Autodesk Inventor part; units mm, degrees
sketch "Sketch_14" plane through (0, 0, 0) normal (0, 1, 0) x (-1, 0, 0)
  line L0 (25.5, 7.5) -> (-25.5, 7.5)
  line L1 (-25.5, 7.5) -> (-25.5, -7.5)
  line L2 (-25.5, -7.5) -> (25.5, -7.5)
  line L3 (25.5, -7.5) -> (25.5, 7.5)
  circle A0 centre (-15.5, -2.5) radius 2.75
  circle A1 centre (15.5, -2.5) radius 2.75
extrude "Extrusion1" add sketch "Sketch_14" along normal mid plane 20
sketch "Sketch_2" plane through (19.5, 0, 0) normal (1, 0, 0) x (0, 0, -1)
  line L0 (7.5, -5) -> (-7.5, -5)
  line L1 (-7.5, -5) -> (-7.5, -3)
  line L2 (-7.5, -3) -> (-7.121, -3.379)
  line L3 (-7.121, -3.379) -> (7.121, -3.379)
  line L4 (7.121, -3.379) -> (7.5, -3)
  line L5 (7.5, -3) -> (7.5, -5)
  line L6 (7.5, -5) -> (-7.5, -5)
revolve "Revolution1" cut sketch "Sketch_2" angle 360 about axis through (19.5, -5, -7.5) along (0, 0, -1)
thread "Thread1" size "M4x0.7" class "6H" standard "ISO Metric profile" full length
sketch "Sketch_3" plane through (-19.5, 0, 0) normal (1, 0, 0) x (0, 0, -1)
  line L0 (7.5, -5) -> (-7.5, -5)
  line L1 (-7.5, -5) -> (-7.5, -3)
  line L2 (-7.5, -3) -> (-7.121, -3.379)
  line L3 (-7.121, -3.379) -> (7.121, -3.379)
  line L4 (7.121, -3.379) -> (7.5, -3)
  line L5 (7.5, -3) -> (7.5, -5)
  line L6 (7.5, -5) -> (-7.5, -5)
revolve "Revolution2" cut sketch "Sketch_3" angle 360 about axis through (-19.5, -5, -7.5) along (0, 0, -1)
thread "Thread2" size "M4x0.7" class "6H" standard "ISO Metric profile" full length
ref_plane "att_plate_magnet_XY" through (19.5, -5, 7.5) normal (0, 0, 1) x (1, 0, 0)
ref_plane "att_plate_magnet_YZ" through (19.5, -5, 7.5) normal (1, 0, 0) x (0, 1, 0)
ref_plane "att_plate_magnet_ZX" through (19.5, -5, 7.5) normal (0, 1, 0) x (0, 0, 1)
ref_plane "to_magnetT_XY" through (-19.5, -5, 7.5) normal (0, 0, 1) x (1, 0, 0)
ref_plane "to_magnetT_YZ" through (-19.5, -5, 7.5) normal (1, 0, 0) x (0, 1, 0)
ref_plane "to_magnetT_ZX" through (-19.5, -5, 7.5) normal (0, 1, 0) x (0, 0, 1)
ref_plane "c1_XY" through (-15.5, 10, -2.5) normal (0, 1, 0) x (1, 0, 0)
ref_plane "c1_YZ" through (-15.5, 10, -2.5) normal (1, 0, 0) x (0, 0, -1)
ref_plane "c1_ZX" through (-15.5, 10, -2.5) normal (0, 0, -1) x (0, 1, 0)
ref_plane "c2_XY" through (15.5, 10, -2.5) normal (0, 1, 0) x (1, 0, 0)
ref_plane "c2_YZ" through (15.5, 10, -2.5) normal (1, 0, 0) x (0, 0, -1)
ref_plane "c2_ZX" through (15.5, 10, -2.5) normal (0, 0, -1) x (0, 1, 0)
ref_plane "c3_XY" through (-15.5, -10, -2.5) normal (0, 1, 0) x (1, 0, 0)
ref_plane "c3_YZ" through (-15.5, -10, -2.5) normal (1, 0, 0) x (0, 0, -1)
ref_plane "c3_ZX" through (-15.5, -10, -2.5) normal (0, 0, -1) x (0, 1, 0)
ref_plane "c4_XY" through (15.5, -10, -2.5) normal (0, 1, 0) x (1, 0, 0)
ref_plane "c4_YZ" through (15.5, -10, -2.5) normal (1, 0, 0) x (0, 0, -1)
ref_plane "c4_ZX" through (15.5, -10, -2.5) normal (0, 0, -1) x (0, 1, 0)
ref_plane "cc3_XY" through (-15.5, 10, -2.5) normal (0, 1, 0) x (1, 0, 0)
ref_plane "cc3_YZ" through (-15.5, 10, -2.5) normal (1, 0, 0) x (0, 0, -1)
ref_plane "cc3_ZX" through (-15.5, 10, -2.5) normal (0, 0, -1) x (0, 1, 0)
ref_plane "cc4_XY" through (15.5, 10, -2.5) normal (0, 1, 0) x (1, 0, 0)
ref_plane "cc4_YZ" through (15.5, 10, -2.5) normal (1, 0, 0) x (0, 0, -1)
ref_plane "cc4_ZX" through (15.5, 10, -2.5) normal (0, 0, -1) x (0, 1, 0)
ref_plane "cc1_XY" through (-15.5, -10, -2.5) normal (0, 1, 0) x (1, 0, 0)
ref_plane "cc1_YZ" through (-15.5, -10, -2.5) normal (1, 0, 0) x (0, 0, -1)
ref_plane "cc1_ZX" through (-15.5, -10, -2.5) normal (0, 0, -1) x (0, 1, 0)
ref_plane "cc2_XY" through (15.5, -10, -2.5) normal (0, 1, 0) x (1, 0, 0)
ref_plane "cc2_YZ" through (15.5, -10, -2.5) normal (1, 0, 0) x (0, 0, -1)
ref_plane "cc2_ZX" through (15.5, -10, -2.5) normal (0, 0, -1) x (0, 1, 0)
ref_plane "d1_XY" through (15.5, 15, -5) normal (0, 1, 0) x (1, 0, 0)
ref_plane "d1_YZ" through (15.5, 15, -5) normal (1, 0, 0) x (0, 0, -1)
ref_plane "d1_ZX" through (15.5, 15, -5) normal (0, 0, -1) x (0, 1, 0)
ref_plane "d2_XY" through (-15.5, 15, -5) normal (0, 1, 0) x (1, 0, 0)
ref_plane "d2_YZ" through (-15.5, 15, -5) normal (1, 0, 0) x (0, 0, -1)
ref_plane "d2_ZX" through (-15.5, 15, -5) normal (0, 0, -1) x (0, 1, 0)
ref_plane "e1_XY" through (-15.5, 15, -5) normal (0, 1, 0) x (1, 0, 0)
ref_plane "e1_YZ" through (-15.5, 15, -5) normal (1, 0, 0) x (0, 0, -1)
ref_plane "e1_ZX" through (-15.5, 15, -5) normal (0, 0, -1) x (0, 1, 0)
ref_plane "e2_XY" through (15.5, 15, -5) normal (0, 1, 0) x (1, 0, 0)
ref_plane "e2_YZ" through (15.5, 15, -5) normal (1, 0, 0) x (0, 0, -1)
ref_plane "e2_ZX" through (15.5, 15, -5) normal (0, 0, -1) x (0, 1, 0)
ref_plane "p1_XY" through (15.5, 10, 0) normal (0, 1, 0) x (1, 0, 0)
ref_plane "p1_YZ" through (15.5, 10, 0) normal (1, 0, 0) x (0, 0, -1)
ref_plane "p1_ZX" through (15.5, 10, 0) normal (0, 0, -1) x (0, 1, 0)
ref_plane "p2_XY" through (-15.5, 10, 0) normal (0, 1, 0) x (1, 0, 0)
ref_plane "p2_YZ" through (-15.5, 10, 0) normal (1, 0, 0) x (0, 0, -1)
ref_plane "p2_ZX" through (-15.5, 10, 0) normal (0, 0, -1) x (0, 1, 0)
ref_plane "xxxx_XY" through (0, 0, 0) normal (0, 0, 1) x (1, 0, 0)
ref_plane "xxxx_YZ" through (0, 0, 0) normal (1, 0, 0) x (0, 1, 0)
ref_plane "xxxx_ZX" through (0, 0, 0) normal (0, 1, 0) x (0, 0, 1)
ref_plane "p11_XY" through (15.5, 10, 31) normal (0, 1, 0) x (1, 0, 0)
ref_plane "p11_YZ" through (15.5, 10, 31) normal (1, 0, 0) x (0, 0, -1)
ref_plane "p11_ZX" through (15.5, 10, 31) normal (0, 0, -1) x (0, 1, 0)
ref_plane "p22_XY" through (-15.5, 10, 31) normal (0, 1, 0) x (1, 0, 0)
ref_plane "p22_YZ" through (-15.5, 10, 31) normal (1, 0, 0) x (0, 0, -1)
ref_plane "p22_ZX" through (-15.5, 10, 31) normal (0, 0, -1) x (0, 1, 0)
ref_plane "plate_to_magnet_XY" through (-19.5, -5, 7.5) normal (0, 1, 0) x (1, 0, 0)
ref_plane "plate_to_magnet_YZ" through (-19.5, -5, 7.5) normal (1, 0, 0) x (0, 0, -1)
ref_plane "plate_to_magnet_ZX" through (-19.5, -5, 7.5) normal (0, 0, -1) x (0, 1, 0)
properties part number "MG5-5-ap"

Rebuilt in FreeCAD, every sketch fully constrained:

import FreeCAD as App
import Part
import Sketcher

V = App.Vector
Q = App.Units.Quantity


def add_polygon(sketch, points):
    """Adds a closed chain of lines whose ends are joined by coincident constraints."""
    first, n = sketch.GeometryCount, len(points)
    for a, b in zip(points, points[1:] + points[:1]):
        sketch.addGeometry(Part.LineSegment(App.Vector(*a, 0), App.Vector(*b, 0)), False)
    for i in range(n):
        sketch.addConstraint(Sketcher.Constraint("Coincident", first + i, 2, first + (i + 1) % n, 1))

doc = App.newDocument("Part")
params = doc.addObject("Spreadsheet::Sheet", "Params")
for row, (alias, value) in enumerate([
    ("sketch1_diameter", "5.5 mm"),
    ("sketch1_width", "51 mm"),
    ("sketch1_height", "15 mm"),
    ("pad1_length", "20 mm"),
    ("sketch2_width", "2 mm"),
    ("sketch2_height", "15 mm"),
    ("groove_angle", "360 deg"),
    ("sketch3_width", "2 mm"),
    ("sketch3_height", "15 mm"),
    ("groove2_angle", "360 deg"),
], start=1):
    params.set(f"A{row}", alias)
    params.set(f"B{row}", "=" + value)
    params.setAlias(f"B{row}", alias)

body = doc.addObject("PartDesign::Body", "Body")

# Sketch on XZ plane
sketch1 = body.newObject("Sketcher::SketchObject", "Sketch")
sketch1.AttachmentSupport = (doc.getObject("XZ_Plane"), [""])
sketch1.MapMode = "FlatFace"
add_polygon(sketch1, [(-25.5, -7.5), (-25.5, 7.5), (25.5, 7.5), (25.5, -7.5)])  # lines 0-3
sketch1.addGeometry(Part.Circle(V(15.5, -2.5, 0), V(0, 0, 1), 2.75), False)  # 4
sketch1.addGeometry(Part.Circle(V(-15.5, -2.5, 0), V(0, 0, 1), 2.75), False)  # 5
sketch1.addConstraint([
    Sketcher.Constraint("Vertical", 0),
    Sketcher.Constraint("Horizontal", 1),
    Sketcher.Constraint("Vertical", 2),
    Sketcher.Constraint("Horizontal", 3),
    Sketcher.Constraint("Equal", 4, 5),
    Sketcher.Constraint("Symmetric", 0, 2, 2, 2, -1, 1),
    Sketcher.Constraint("Symmetric", 4, 3, 5, 3, -2),
    Sketcher.Constraint("Diameter", 4, Q("5.5 mm")),
    Sketcher.Constraint("DistanceX", 1, 1, 1, 2, Q("51 mm")),
    Sketcher.Constraint("DistanceY", 0, 1, 0, 2, Q("15 mm")),
    Sketcher.Constraint("DistanceX", 5, 3, 4, 3, Q("31 mm")),
    Sketcher.Constraint("DistanceY", 5, 3, 0, 2, Q("10 mm")),
])
sketch1.setExpression("Constraints[11]", "Params.sketch1_diameter")
sketch1.setExpression("Constraints[12]", "Params.sketch1_width")
sketch1.setExpression("Constraints[13]", "Params.sketch1_height")
pad1 = body.newObject("PartDesign::Pad", "Pad")
pad1.Profile = sketch1
pad1.setExpression("Length", "Params.pad1_length")
pad1.Midplane = True

# Sketch on YZ plane
sketch2 = body.newObject("Sketcher::SketchObject", "Sketch001")
sketch2.AttachmentSupport = (doc.getObject("YZ_Plane"), [""])
sketch2.MapMode = "FlatFace"
sketch2.AttachmentOffset = App.Placement(V(0, 0, 19.5), App.Rotation())
add_polygon(sketch2, [(-5, 7.5), (-5, -7.5), (-3, -7.5), (-3.379, -7.121), (-3.379, 7.121), (-3, 7.5)])  # lines 0-5
sketch2.addGeometry(Part.LineSegment(V(-5, 7.5, 0), V(-5, -7.5, 0)), True)  # axis
sketch2.addConstraint([
    Sketcher.Constraint("Vertical", 0),
    Sketcher.Constraint("Horizontal", 1),
    Sketcher.Constraint("Vertical", 3),
    Sketcher.Constraint("Horizontal", 5),
    Sketcher.Constraint("Vertical", 6),
    Sketcher.Constraint("Coincident", 6, 1, 5, 2),
    Sketcher.Constraint("Symmetric", 1, 2, 4, 2, -1),
    Sketcher.Constraint("Perpendicular", 2, 4),
    Sketcher.Constraint("Horizontal", 1, 2, 6, 2),
    Sketcher.Constraint("Equal", 2, 4),
    Sketcher.Constraint("DistanceX", 1, 1, 1, 2, Q("2 mm")),
    Sketcher.Constraint("DistanceY", 0, 2, 0, 1, Q("15 mm")),
    Sketcher.Constraint("DistanceX", 0, 2, -1, 1, Q("5 mm")),
    Sketcher.Constraint("DistanceY", 3, 1, 3, 2, Q("14.242 mm")),
])
sketch2.setExpression("Constraints[16]", "Params.sketch2_width")
sketch2.setExpression("Constraints[17]", "Params.sketch2_height")
groove = body.newObject("PartDesign::Groove", "Groove")
groove.Profile = sketch2
groove.ReferenceAxis = (sketch2, ["Axis0"])
groove.setExpression("Angle", "Params.groove_angle")

# Sketch on YZ plane
sketch3 = body.newObject("Sketcher::SketchObject", "Sketch002")
sketch3.AttachmentSupport = (doc.getObject("YZ_Plane"), [""])
sketch3.MapMode = "FlatFace"
sketch3.AttachmentOffset = App.Placement(V(0, 0, -19.5), App.Rotation())
add_polygon(sketch3, [(-5, 7.5), (-5, -7.5), (-3, -7.5), (-3.379, -7.121), (-3.379, 7.121), (-3, 7.5)])  # lines 0-5
sketch3.addGeometry(Part.LineSegment(V(-5, 7.5, 0), V(-5, -7.5, 0)), True)  # axis
sketch3.addConstraint([
    Sketcher.Constraint("Vertical", 0),
    Sketcher.Constraint("Horizontal", 1),
    Sketcher.Constraint("Vertical", 3),
    Sketcher.Constraint("Horizontal", 5),
    Sketcher.Constraint("Vertical", 6),
    Sketcher.Constraint("Coincident", 6, 1, 5, 2),
    Sketcher.Constraint("Symmetric", 1, 2, 4, 2, -1),
    Sketcher.Constraint("Perpendicular", 2, 4),
    Sketcher.Constraint("Horizontal", 1, 2, 6, 2),
    Sketcher.Constraint("Equal", 2, 4),
    Sketcher.Constraint("DistanceX", 1, 1, 1, 2, Q("2 mm")),
    Sketcher.Constraint("DistanceY", 0, 2, 0, 1, Q("15 mm")),
    Sketcher.Constraint("DistanceX", 0, 2, -1, 1, Q("5 mm")),
    Sketcher.Constraint("DistanceY", 3, 1, 3, 2, Q("14.242 mm")),
])
sketch3.setExpression("Constraints[16]", "Params.sketch3_width")
sketch3.setExpression("Constraints[17]", "Params.sketch3_height")
groove2 = body.newObject("PartDesign::Groove", "Groove001")
groove2.Profile = sketch3
groove2.ReferenceAxis = (sketch3, ["Axis0"])
groove2.setExpression("Angle", "Params.groove2_angle")

doc.recompute()
